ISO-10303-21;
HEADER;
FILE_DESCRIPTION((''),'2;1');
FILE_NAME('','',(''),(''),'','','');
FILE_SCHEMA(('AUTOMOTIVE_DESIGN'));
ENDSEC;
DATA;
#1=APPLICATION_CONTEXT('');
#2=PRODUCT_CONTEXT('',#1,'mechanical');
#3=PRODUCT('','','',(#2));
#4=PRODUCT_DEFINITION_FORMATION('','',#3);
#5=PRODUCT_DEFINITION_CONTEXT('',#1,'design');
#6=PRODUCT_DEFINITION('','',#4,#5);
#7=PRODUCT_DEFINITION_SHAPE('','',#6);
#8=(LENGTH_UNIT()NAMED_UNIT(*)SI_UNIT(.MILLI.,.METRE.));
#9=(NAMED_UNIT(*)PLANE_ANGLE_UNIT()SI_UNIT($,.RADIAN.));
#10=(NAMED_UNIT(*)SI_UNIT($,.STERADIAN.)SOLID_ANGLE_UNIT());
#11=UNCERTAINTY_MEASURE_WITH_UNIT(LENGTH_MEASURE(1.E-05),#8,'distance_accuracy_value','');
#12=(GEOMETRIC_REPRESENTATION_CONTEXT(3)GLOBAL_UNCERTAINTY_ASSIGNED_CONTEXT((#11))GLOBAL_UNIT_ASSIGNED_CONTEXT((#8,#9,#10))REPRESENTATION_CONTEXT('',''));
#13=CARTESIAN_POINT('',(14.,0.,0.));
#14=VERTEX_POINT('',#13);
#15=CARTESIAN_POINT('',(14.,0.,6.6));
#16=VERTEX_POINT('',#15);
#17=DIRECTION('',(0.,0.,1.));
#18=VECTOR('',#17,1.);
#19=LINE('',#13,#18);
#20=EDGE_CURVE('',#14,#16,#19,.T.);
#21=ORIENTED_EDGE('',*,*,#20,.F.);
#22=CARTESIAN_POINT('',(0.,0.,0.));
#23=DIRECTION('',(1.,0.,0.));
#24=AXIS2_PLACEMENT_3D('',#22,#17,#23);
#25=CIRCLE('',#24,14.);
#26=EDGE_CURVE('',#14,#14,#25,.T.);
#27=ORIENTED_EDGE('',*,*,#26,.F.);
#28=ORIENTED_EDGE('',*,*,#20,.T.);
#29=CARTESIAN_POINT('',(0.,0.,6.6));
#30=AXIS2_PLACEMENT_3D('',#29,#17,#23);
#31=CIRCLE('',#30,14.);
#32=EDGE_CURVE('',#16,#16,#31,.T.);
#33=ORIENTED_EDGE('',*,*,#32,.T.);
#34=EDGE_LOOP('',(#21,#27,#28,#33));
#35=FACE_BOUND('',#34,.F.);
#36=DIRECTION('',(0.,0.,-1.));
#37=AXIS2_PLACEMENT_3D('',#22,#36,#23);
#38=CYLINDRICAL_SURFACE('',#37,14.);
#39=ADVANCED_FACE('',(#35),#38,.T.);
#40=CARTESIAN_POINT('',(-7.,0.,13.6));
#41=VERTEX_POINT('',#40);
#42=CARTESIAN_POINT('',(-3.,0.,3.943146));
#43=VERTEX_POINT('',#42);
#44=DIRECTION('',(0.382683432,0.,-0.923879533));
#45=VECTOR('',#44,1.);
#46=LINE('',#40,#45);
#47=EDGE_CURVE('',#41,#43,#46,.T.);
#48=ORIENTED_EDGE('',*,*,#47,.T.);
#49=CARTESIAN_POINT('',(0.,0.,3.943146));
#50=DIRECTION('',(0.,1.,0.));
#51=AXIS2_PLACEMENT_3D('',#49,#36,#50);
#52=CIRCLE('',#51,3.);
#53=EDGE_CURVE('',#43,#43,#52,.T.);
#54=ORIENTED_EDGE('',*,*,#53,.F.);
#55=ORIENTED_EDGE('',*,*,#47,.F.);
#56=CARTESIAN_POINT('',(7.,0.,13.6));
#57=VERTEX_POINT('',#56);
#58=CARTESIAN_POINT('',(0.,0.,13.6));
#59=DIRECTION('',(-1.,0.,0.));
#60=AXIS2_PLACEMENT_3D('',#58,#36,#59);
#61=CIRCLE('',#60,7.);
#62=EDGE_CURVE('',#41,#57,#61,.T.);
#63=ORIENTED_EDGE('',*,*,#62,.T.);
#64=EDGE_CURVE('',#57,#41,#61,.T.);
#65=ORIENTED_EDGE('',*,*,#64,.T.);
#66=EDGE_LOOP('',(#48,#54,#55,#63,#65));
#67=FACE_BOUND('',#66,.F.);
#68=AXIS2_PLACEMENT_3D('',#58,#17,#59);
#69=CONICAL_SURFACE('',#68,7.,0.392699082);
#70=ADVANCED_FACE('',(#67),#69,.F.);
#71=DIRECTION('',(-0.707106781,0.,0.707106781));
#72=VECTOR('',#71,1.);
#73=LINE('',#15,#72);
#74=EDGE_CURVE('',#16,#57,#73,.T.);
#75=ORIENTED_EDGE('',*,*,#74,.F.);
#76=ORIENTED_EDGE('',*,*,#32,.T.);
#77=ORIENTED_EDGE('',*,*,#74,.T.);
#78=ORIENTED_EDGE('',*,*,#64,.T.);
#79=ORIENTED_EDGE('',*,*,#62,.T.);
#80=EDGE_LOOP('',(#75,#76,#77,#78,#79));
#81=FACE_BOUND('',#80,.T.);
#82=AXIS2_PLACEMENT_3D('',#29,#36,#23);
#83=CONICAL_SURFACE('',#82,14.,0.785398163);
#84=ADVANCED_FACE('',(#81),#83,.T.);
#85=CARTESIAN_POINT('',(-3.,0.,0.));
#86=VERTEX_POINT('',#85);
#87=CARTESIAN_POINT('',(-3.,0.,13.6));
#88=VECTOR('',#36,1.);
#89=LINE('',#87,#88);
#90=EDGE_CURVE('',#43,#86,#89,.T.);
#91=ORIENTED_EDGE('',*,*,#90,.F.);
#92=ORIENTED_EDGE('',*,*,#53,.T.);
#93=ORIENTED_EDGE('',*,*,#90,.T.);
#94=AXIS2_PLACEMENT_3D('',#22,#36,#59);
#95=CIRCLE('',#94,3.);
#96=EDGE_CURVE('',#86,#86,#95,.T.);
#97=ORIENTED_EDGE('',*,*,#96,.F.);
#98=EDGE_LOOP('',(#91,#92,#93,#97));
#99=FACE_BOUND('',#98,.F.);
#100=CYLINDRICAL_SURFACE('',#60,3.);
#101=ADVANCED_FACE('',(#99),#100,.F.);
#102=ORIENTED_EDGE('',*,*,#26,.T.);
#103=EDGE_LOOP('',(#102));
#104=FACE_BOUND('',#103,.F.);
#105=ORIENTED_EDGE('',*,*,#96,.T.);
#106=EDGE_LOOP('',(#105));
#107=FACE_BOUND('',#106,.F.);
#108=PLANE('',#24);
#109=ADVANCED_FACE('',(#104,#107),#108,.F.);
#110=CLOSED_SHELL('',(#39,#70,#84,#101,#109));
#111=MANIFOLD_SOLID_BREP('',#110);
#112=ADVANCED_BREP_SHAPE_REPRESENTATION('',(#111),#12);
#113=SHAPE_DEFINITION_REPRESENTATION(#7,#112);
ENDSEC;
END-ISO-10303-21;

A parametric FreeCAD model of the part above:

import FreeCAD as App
import Part
import Sketcher

V = App.Vector
Q = App.Units.Quantity


def edges_at(feature, points):
    """Names of the edges that pass closest to the given points."""
    edges = feature.Shape.Edges
    near = lambda p: min(range(len(edges)), key=lambda i: edges[i].distToShape(Part.Vertex(*p))[0])
    return sorted({f"Edge{near(p) + 1}" for p in points})

doc = App.newDocument("Part")
body = doc.addObject("PartDesign::Body", "Body")

sketch1 = doc.addObject("Sketcher::SketchObject", "Sketch")
body.addObject(sketch1)
sketch1.AttachmentSupport = (doc.XY_Plane, [""])
sketch1.MapMode = "FlatFace"
sketch1.addGeometry(Part.Circle(V(0, 0, 0), V(0, 0, 1), 14), False)
sketch1.addConstraint([
    Sketcher.Constraint("Coincident", 0, 3, -1, 1),
    Sketcher.Constraint("Diameter", 0, Q("28 mm")),
])
pad1 = doc.addObject("PartDesign::Pad", "Pad")
body.addObject(pad1)
pad1.Profile = sketch1
pad1.Length = 14.6
doc.recompute()

chamfer = doc.addObject("PartDesign::Chamfer", "Chamfer")
body.addObject(chamfer)
chamfer.Base = (pad1, edges_at(pad1, [(-14, 0, 14.6)]))
chamfer.Size = 8

sketch2 = doc.addObject("Sketcher::SketchObject", "Sketch001")
body.addObject(sketch2)
sketch2.AttachmentSupport = (doc.XY_Plane, [""])
sketch2.MapMode = "FlatFace"
sketch2.AttachmentOffset = App.Placement(V(0, 0, 13.6), App.Rotation())
sketch2.addGeometry(Part.Circle(V(0, 0, 0), V(0, 0, 1), 3), False)
sketch2.addConstraint([
    Sketcher.Constraint("Coincident", 0, 3, -1, 1),
    Sketcher.Constraint("Diameter", 0, Q("6 mm")),
])
doc.recompute()
hole = doc.addObject("PartDesign::Hole", "Hole")
body.addObject(hole)
hole.Profile = sketch2
hole.ThreadType = "None"
hole.Diameter = 6
hole.DepthType = "ThroughAll"
hole.HoleCutType = "Countersink"
hole.HoleCutDiameter = 14
hole.HoleCutCountersinkAngle = 45

doc.recompute()
